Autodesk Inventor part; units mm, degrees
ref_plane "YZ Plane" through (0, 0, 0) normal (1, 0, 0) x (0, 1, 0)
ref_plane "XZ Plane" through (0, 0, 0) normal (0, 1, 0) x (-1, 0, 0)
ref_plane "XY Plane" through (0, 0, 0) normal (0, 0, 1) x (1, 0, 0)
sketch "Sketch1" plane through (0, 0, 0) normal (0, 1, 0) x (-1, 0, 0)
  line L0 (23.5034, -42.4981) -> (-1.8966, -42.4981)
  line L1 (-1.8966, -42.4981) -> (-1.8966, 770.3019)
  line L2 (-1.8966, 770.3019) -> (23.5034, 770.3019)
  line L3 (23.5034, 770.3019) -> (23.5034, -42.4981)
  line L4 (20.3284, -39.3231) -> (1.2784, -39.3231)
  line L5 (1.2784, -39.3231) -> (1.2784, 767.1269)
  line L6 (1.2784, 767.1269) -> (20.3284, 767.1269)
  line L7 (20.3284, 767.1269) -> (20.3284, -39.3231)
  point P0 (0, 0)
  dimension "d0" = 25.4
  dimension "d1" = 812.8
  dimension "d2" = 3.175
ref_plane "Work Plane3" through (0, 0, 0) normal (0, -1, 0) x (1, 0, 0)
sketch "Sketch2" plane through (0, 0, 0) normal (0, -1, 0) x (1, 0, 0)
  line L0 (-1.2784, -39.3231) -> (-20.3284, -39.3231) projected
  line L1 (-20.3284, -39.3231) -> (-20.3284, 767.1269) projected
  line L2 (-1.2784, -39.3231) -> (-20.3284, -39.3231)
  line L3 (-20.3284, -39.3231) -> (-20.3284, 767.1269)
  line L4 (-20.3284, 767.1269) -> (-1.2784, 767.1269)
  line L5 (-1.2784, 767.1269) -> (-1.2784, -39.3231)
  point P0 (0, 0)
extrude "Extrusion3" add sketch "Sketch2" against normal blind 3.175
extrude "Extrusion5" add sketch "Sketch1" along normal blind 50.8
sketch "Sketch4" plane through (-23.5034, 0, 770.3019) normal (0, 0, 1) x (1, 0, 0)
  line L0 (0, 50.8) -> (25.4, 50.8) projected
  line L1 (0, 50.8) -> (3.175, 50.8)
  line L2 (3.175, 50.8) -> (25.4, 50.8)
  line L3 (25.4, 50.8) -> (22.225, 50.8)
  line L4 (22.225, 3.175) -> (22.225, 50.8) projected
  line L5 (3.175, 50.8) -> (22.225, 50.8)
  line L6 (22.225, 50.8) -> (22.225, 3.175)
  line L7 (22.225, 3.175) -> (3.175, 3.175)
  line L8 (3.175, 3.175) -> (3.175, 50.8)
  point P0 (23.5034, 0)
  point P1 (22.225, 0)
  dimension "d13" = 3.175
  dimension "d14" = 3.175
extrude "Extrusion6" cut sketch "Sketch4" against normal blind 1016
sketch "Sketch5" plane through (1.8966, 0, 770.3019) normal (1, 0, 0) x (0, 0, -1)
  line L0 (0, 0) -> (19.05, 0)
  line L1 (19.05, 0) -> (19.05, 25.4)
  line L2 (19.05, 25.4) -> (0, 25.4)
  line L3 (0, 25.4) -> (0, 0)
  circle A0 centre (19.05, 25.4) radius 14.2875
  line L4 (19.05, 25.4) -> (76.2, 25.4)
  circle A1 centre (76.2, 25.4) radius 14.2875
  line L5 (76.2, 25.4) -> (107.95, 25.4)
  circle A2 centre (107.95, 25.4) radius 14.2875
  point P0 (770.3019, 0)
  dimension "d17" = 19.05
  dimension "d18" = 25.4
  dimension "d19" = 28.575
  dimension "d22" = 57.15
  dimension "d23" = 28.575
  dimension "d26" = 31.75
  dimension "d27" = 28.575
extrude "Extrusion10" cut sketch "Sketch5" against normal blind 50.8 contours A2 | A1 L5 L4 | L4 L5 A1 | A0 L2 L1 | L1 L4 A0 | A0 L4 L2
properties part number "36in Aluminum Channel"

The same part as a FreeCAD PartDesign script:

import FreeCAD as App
import Part
import Sketcher

V = App.Vector
Q = App.Units.Quantity

doc = App.newDocument("Part")
params = doc.addObject("Spreadsheet::Sheet", "Params")
for row, (alias, value) in enumerate([
    ("sketch1_width", "0.75 in"),
    ("sketch1_height", "31.75 in"),
    ("pad1_length", "0.125 in"),
    ("sketch2_width", "1 in"),
    ("sketch2_height", "32 in"),
    ("pad2_length", "2 in"),
    ("sketch3_width", "0.75 in"),
    ("pocket1_length", "40 in"),
    ("sketch4_diameter", "1.125 in"),
    ("pocket2_length", "2 in"),
], start=1):
    params.set(f"A{row}", alias)
    params.set(f"B{row}", "=" + value)
    params.setAlias(f"B{row}", alias)

body = doc.addObject("PartDesign::Body", "Body")

sketch1 = body.newObject("Sketcher::SketchObject", "Sketch")
sketch1.AttachmentSupport = (doc.getObject("XZ_Plane"), [""])
sketch1.MapMode = "FlatFace"
sketch1.addGeometry([
    Part.LineSegment(V(-20, -39, 0), V(-1, -39, 0)),
    Part.LineSegment(V(-1, -39, 0), V(-1, 767, 0)),
    Part.LineSegment(V(-1, 767, 0), V(-20, 767, 0)),
    Part.LineSegment(V(-20, 767, 0), V(-20, -39, 0)),
], False)
sketch1.addConstraint([
    Sketcher.Constraint("Coincident", 0, 2, 1, 1),
    Sketcher.Constraint("Coincident", 1, 2, 2, 1),
    Sketcher.Constraint("Coincident", 2, 2, 3, 1),
    Sketcher.Constraint("Coincident", 3, 2, 0, 1),
    Sketcher.Constraint("Horizontal", 0),
    Sketcher.Constraint("Vertical", 1),
    Sketcher.Constraint("Horizontal", 2),
    Sketcher.Constraint("Vertical", 3),
    Sketcher.Constraint("DistanceX", 0, 1, 0, 2, Q("0.75 in")),
    Sketcher.Constraint("DistanceY", 1, 1, 1, 2, Q("31.75 in")),
    Sketcher.Constraint("DistanceX", 0, 2, -1, 1, 1.2784),
    Sketcher.Constraint("DistanceY", 0, 2, -1, 1, 39.323),
])
sketch1.setExpression("Constraints[8]", "Params.sketch1_width")
sketch1.setExpression("Constraints[9]", "Params.sketch1_height")
pad1 = body.newObject("PartDesign::Pad", "Pad")
pad1.Profile = sketch1
pad1.setExpression("Length", "Params.pad1_length")
pad1.Reversed = True

sketch2 = body.newObject("Sketcher::SketchObject", "Sketch001")
sketch2.AttachmentSupport = (doc.getObject("XZ_Plane"), [""])
sketch2.MapMode = "FlatFace"
sketch2.addGeometry([
    Part.LineSegment(V(2, -42, 0), V(-24, -42, 0)),
    Part.LineSegment(V(-24, -42, 0), V(-24, 770, 0)),
    Part.LineSegment(V(-24, 770, 0), V(2, 770, 0)),
    Part.LineSegment(V(2, 770, 0), V(2, -42, 0)),
    Part.LineSegment(V(-20, 767, 0), V(-20, -39, 0)),
    Part.LineSegment(V(-20, -39, 0), V(-1, -39, 0)),
    Part.LineSegment(V(-1, -39, 0), V(-1, 767, 0)),
    Part.LineSegment(V(-1, 767, 0), V(-20, 767, 0)),
], False)
sketch2.addConstraint([
    Sketcher.Constraint("Coincident", 0, 2, 1, 1),
    Sketcher.Constraint("Coincident", 1, 2, 2, 1),
    Sketcher.Constraint("Coincident", 2, 2, 3, 1),
    Sketcher.Constraint("Coincident", 3, 2, 0, 1),
    Sketcher.Constraint("Coincident", 4, 2, 5, 1),
    Sketcher.Constraint("Coincident", 5, 2, 6, 1),
    Sketcher.Constraint("Coincident", 6, 2, 7, 1),
    Sketcher.Constraint("Coincident", 7, 2, 4, 1),
    Sketcher.Constraint("Horizontal", 0),
    Sketcher.Constraint("Vertical", 1),
    Sketcher.Constraint("Horizontal", 2),
    Sketcher.Constraint("Vertical", 3),
    Sketcher.Constraint("Vertical", 4),
    Sketcher.Constraint("Horizontal", 5),
    Sketcher.Constraint("Vertical", 6),
    Sketcher.Constraint("Horizontal", 7),
    Sketcher.Constraint("DistanceX", 0, 2, 0, 1, Q("1 in")),
    Sketcher.Constraint("DistanceY", 1, 1, 1, 2, Q("32 in")),
    Sketcher.Constraint("DistanceX", 0, 2, 4, 2, Q("0.125 in")),
    Sketcher.Constraint("DistanceY", 0, 2, 4, 2, Q("0.125 in")),
    Sketcher.Constraint("DistanceX", 5, 2, 3, 2, Q("0.125 in")),
    Sketcher.Constraint("DistanceY", 6, 2, 2, 2, Q("0.125 in")),
    Sketcher.Constraint("DistanceX", 0, 2, -1, 1, 23.5034),
    Sketcher.Constraint("DistanceY", 0, 2, -1, 1, 42.498),
])
sketch2.setExpression("Constraints[16]", "Params.sketch2_width")
sketch2.setExpression("Constraints[17]", "Params.sketch2_height")
pad2 = body.newObject("PartDesign::Pad", "Pad001")
pad2.Profile = sketch2
pad2.setExpression("Length", "Params.pad2_length")
pad2.Reversed = True

sketch3 = body.newObject("Sketcher::SketchObject", "Sketch002")
sketch3.AttachmentSupport = (doc.getObject("XY_Plane"), [""])
sketch3.MapMode = "FlatFace"
sketch3.AttachmentOffset = App.Placement(V(0, 0, 770.3019), App.Rotation())
sketch3.addGeometry([
    Part.LineSegment(V(-1, 51, 0), V(-20, 51, 0)),
    Part.LineSegment(V(-20, 51, 0), V(-20, 3, 0)),
    Part.LineSegment(V(-20, 3, 0), V(-1, 3, 0)),
    Part.LineSegment(V(-1, 3, 0), V(-1, 51, 0)),
], False)
sketch3.addConstraint([
    Sketcher.Constraint("Coincident", 0, 2, 1, 1),
    Sketcher.Constraint("Coincident", 1, 2, 2, 1),
    Sketcher.Constraint("Coincident", 2, 2, 3, 1),
    Sketcher.Constraint("Coincident", 3, 2, 0, 1),
    Sketcher.Constraint("Horizontal", 0),
    Sketcher.Constraint("Vertical", 1),
    Sketcher.Constraint("Horizontal", 2),
    Sketcher.Constraint("Vertical", 3),
    Sketcher.Constraint("DistanceY", -1, 1, 1, 2, Q("0.125 in")),
    Sketcher.Constraint("DistanceY", -1, 1, 0, 2, Q("2 in")),
    Sketcher.Constraint("DistanceX", 0, 2, 0, 1, Q("0.75 in")),
    Sketcher.Constraint("DistanceX", 0, 2, -1, 1, 20.3284),
])
sketch3.setExpression("Constraints[10]", "Params.sketch3_width")
pocket1 = body.newObject("PartDesign::Pocket", "Pocket")
pocket1.Profile = sketch3
pocket1.setExpression("Length", "Params.pocket1_length")

sketch4 = body.newObject("Sketcher::SketchObject", "Sketch003")
sketch4.AttachmentSupport = (doc.getObject("YZ_Plane"), [""])
sketch4.MapMode = "FlatFace"
sketch4.AttachmentOffset = App.Placement(V(0, 0, 1.8966), App.Rotation())
sketch4.addGeometry([
    Part.Circle(V(25, 662, 0), V(0, 0, 1), 14),
    Part.Circle(V(25, 694, 0), V(0, 0, 1), 14),
    Part.Circle(V(25, 751, 0), V(0, 0, 1), 14),
], False)
sketch4.addConstraint([
    Sketcher.Constraint("Equal", 0, 1),
    Sketcher.Constraint("Equal", 1, 2),
    Sketcher.Constraint("Vertical", 0, 3, 1, 3),
    Sketcher.Constraint("Vertical", 1, 3, 2, 3),
    Sketcher.Constraint("Diameter", 0, Q("1.125 in")),
    Sketcher.Constraint("DistanceX", -1, 1, 0, 3, Q("1 in")),
    Sketcher.Constraint("DistanceY", 0, 3, 1, 3, Q("1.25 in")),
    Sketcher.Constraint("DistanceY", 1, 3, 2, 3, Q("2.25 in")),
    Sketcher.Constraint("DistanceY", -1, 1, 0, 3, 662.352),
])
sketch4.setExpression("Constraints[4]", "Params.sketch4_diameter")
pocket2 = body.newObject("PartDesign::Pocket", "Pocket001")
pocket2.Profile = sketch4
pocket2.setExpression("Length", "Params.pocket2_length")

doc.recompute()
